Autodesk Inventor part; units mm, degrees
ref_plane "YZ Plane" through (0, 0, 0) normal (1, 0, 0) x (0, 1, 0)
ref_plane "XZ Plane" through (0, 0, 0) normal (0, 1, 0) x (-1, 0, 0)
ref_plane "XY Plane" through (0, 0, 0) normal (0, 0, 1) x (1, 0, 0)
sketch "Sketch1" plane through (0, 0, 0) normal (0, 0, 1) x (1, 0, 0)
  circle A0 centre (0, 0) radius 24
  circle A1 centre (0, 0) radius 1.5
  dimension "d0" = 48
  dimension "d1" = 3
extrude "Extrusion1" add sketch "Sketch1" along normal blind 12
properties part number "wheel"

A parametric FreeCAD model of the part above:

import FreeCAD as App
import Part
import Sketcher
from FreeCAD import Vector
Q = App.Units.Quantity

doc = App.newDocument("Part")
params = doc.addObject("Spreadsheet::Sheet", "Params")
for row, (alias, value) in enumerate([
    ("sketch1_diameter", "48 mm"),
    ("sketch1_diameter2", "3 mm"),
    ("pad1_length", "12 mm"),
], start=1):
    params.set(f"A{row}", alias)
    params.set(f"B{row}", "=" + value)
    params.setAlias(f"B{row}", alias)

body = doc.addObject("PartDesign::Body", "Body")

sketch1 = doc.addObject("Sketcher::SketchObject", "Sketch")
body.addObject(sketch1)
sketch1.AttachmentSupport = (doc.XY_Plane, [""])
sketch1.MapMode = "FlatFace"
sketch1.addGeometry(Part.Circle(Vector(0, 0, 0), Vector(0, 0, 1), 24), False)
sketch1.addGeometry(Part.Circle(Vector(0, 0, 0), Vector(0, 0, 1), 1.5), False)
sketch1.addConstraint(Sketcher.Constraint("Coincident", 0, 3, -1, 1))
sketch1.addConstraint(Sketcher.Constraint("Coincident", 1, 3, -1, 1))
sketch1.addConstraint(Sketcher.Constraint("Diameter", 0, Q("48 mm")))
sketch1.addConstraint(Sketcher.Constraint("Diameter", 1, Q("3 mm")))
sketch1.setExpression("Constraints[2]", "Params.sketch1_diameter")
sketch1.setExpression("Constraints[3]", "Params.sketch1_diameter2")
pad1 = doc.addObject("PartDesign::Pad", "Pad")
body.addObject(pad1)
pad1.Profile = sketch1
pad1.setExpression("Length", "Params.pad1_length")

doc.recompute()
